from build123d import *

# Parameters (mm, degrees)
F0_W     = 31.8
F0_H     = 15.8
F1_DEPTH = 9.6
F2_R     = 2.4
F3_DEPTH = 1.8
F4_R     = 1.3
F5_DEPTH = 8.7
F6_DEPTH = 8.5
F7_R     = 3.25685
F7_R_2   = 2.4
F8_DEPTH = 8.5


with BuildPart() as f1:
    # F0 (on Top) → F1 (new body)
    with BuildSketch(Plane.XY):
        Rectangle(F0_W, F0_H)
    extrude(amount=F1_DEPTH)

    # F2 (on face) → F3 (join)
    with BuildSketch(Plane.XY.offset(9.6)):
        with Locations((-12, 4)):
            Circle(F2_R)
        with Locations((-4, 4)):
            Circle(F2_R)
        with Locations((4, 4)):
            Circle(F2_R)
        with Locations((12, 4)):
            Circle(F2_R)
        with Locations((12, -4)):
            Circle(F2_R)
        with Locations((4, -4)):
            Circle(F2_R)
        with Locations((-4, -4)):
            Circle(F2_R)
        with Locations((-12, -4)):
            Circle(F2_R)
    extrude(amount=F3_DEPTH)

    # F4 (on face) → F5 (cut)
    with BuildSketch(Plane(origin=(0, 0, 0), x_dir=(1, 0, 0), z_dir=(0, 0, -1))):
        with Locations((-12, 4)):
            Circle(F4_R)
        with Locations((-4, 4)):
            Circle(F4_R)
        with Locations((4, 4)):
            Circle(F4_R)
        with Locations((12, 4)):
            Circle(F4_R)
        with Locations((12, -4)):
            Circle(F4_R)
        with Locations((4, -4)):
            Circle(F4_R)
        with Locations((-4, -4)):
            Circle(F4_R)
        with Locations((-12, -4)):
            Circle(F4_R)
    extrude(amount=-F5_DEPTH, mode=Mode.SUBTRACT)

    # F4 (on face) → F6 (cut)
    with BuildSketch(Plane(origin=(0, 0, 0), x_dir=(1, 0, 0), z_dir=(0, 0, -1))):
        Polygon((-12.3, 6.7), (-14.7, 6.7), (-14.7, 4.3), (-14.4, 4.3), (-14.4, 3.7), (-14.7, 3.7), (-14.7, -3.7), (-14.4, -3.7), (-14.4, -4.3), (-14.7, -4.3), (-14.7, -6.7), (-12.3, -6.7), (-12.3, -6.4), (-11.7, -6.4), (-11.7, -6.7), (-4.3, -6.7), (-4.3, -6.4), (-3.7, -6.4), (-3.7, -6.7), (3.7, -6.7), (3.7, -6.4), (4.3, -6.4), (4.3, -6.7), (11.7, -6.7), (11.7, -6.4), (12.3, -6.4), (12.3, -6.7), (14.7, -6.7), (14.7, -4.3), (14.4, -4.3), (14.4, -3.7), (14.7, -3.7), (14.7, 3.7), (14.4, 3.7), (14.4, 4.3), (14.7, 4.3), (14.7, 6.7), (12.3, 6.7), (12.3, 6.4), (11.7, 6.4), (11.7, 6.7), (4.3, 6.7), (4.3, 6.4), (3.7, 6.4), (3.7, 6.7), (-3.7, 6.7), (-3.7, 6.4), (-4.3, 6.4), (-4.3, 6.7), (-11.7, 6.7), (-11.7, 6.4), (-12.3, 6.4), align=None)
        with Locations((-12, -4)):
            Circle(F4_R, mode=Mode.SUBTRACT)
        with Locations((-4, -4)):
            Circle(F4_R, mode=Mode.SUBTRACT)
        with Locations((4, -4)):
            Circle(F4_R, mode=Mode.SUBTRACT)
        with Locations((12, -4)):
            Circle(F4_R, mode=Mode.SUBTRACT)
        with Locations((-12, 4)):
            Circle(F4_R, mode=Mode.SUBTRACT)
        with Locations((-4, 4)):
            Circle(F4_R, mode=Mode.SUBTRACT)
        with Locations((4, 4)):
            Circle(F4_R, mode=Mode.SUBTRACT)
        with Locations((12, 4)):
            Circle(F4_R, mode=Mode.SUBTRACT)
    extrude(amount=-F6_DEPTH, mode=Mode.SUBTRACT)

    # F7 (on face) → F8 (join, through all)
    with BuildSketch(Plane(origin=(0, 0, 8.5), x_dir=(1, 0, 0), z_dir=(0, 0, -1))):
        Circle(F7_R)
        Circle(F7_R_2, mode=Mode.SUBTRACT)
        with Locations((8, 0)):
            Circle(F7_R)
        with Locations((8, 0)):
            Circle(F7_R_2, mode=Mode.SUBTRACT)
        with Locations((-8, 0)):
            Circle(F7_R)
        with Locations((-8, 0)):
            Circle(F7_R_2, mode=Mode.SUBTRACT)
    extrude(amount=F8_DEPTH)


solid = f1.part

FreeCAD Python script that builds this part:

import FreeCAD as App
import Part
import Sketcher
from FreeCAD import Vector


def add_polygon(sketch, points):
    """Adds a closed chain of lines whose ends are joined by coincident constraints."""
    first, n = sketch.GeometryCount, len(points)
    for a, b in zip(points, points[1:] + points[:1]):
        sketch.addGeometry(Part.LineSegment(App.Vector(*a, 0), App.Vector(*b, 0)), False)
    for i in range(n):
        sketch.addConstraint(Sketcher.Constraint("Coincident", first + i, 2, first + (i + 1) % n, 1))

doc = App.newDocument("Part")
body = doc.addObject("PartDesign::Body", "Body")

sketch1 = body.newObject("Sketcher::SketchObject", "Sketch")
sketch1.AttachmentSupport = (doc.getObject("XY_Plane"), [""])
sketch1.MapMode = "FlatFace"
add_polygon(sketch1, [(-15.9, 7.9), (-15.9, -7.9), (15.9, -7.9), (15.9, 7.9)])
sketch1.addConstraint(Sketcher.Constraint("Vertical", 0))
sketch1.addConstraint(Sketcher.Constraint("Horizontal", 1))
sketch1.addConstraint(Sketcher.Constraint("Vertical", 2))
sketch1.addConstraint(Sketcher.Constraint("Horizontal", 3))
sketch1.addConstraint(Sketcher.Constraint("Symmetric", 0, 2, 2, 2, -1, 1))
sketch1.addConstraint(Sketcher.Constraint("DistanceX", 1, 1, 1, 2, 31.8))
sketch1.addConstraint(Sketcher.Constraint("DistanceY", 0, 2, 0, 1, 15.8))
pad1 = body.newObject("PartDesign::Pad", "Pad")
pad1.Profile = sketch1
pad1.Length = 9.6

sketch2 = body.newObject("Sketcher::SketchObject", "Sketch001")
sketch2.AttachmentSupport = (doc.getObject("XY_Plane"), [""])
sketch2.MapMode = "FlatFace"
sketch2.AttachmentOffset = App.Placement(Vector(0, 0, 9.6), App.Rotation())
sketch2.addGeometry(Part.Circle(Vector(-12, 4, 0), Vector(0, 0, 1), 2.4), False)
sketch2.addGeometry(Part.Circle(Vector(-4, 4, 0), Vector(0, 0, 1), 2.4), False)
sketch2.addGeometry(Part.Circle(Vector(4, 4, 0), Vector(0, 0, 1), 2.4), False)
sketch2.addGeometry(Part.Circle(Vector(12, 4, 0), Vector(0, 0, 1), 2.4), False)
sketch2.addGeometry(Part.Circle(Vector(12, -4, 0), Vector(0, 0, 1), 2.4), False)
sketch2.addGeometry(Part.Circle(Vector(4, -4, 0), Vector(0, 0, 1), 2.4), False)
sketch2.addGeometry(Part.Circle(Vector(-4, -4, 0), Vector(0, 0, 1), 2.4), False)
sketch2.addGeometry(Part.Circle(Vector(-12, -4, 0), Vector(0, 0, 1), 2.4), False)
sketch2.addConstraint(Sketcher.Constraint("Equal", 0, 1))
sketch2.addConstraint(Sketcher.Constraint("Equal", 1, 2))
sketch2.addConstraint(Sketcher.Constraint("Equal", 2, 3))
sketch2.addConstraint(Sketcher.Constraint("Equal", 3, 4))
sketch2.addConstraint(Sketcher.Constraint("Equal", 4, 5))
sketch2.addConstraint(Sketcher.Constraint("Equal", 5, 6))
sketch2.addConstraint(Sketcher.Constraint("Equal", 6, 7))
sketch2.addConstraint(Sketcher.Constraint("Symmetric", 0, 3, 4, 3, -1, 1))
sketch2.addConstraint(Sketcher.Constraint("Symmetric", 1, 3, 5, 3, -1, 1))
sketch2.addConstraint(Sketcher.Constraint("Symmetric", 2, 3, 6, 3, -1, 1))
sketch2.addConstraint(Sketcher.Constraint("Symmetric", 3, 3, 7, 3, -1, 1))
sketch2.addConstraint(Sketcher.Constraint("Symmetric", 1, 3, 2, 3, -2))
sketch2.addConstraint(Sketcher.Constraint("Symmetric", 0, 3, 3, 3, -2))
sketch2.addConstraint(Sketcher.Constraint("Horizontal", 0, 3, 1, 3))
sketch2.addConstraint(Sketcher.Constraint("Diameter", 0, 4.8))
sketch2.addConstraint(Sketcher.Constraint("DistanceX", 0, 3, -1, 1, 12.0))
sketch2.addConstraint(Sketcher.Constraint("DistanceY", -1, 1, 0, 3, 4.0))
sketch2.addConstraint(Sketcher.Constraint("DistanceX", 1, 3, -1, 1, 4.0))
pad2 = body.newObject("PartDesign::Pad", "Pad001")
pad2.Profile = sketch2
pad2.Length = 1.8

sketch3 = body.newObject("Sketcher::SketchObject", "Sketch002")
sketch3.AttachmentSupport = (doc.getObject("XY_Plane"), [""])
sketch3.MapMode = "FlatFace"
sketch3.addGeometry(Part.Circle(Vector(-12, -4, 0), Vector(0, 0, 1), 1.3), False)
sketch3.addGeometry(Part.Circle(Vector(-4, -4, 0), Vector(0, 0, 1), 1.3), False)
sketch3.addGeometry(Part.Circle(Vector(4, -4, 0), Vector(0, 0, 1), 1.3), False)
sketch3.addGeometry(Part.Circle(Vector(12, -4, 0), Vector(0, 0, 1), 1.3), False)
sketch3.addGeometry(Part.Circle(Vector(12, 4, 0), Vector(0, 0, 1), 1.3), False)
sketch3.addGeometry(Part.Circle(Vector(4, 4, 0), Vector(0, 0, 1), 1.3), False)
sketch3.addGeometry(Part.Circle(Vector(-4, 4, 0), Vector(0, 0, 1), 1.3), False)
sketch3.addGeometry(Part.Circle(Vector(-12, 4, 0), Vector(0, 0, 1), 1.3), False)
sketch3.addConstraint(Sketcher.Constraint("Equal", 0, 1))
sketch3.addConstraint(Sketcher.Constraint("Equal", 1, 2))
sketch3.addConstraint(Sketcher.Constraint("Equal", 2, 3))
sketch3.addConstraint(Sketcher.Constraint("Equal", 3, 4))
sketch3.addConstraint(Sketcher.Constraint("Equal", 4, 5))
sketch3.addConstraint(Sketcher.Constraint("Equal", 5, 6))
sketch3.addConstraint(Sketcher.Constraint("Equal", 6, 7))
sketch3.addConstraint(Sketcher.Constraint("Symmetric", 0, 3, 4, 3, -1, 1))
sketch3.addConstraint(Sketcher.Constraint("Symmetric", 1, 3, 5, 3, -1, 1))
sketch3.addConstraint(Sketcher.Constraint("Symmetric", 2, 3, 6, 3, -1, 1))
sketch3.addConstraint(Sketcher.Constraint("Symmetric", 3, 3, 7, 3, -1, 1))
sketch3.addConstraint(Sketcher.Constraint("Symmetric", 1, 3, 2, 3, -2))
sketch3.addConstraint(Sketcher.Constraint("Symmetric", 0, 3, 3, 3, -2))
sketch3.addConstraint(Sketcher.Constraint("Horizontal", 0, 3, 1, 3))
sketch3.addConstraint(Sketcher.Constraint("Diameter", 0, 2.6))
sketch3.addConstraint(Sketcher.Constraint("DistanceX", 0, 3, -1, 1, 12.0))
sketch3.addConstraint(Sketcher.Constraint("DistanceY", 0, 3, -1, 1, 4.0))
sketch3.addConstraint(Sketcher.Constraint("DistanceX", 1, 3, -1, 1, 4.0))
pocket1 = body.newObject("PartDesign::Pocket", "Pocket")
pocket1.Profile = sketch3
pocket1.Length = 8.7
pocket1.Reversed = True

sketch4 = body.newObject("Sketcher::SketchObject", "Sketch003")
sketch4.AttachmentSupport = (doc.getObject("XY_Plane"), [""])
sketch4.MapMode = "FlatFace"
add_polygon(sketch4, [(-12.3, -6.7), (-14.7, -6.7), (-14.7, -4.3), (-14.4, -4.3), (-14.4, -3.7), (-14.7, -3.7), (-14.7, 3.7), (-14.4, 3.7), (-14.4, 4.3), (-14.7, 4.3), (-14.7, 6.7), (-12.3, 6.7), (-12.3, 6.4), (-11.7, 6.4), (-11.7, 6.7), (-4.3, 6.7), (-4.3, 6.4), (-3.7, 6.4), (-3.7, 6.7), (3.7, 6.7), (3.7, 6.4), (4.3, 6.4), (4.3, 6.7), (11.7, 6.7), (11.7, 6.4), (12.3, 6.4), (12.3, 6.7), (14.7, 6.7), (14.7, 4.3), (14.4, 4.3), (14.4, 3.7), (14.7, 3.7), (14.7, -3.7), (14.4, -3.7), (14.4, -4.3), (14.7, -4.3), (14.7, -6.7), (12.3, -6.7), (12.3, -6.4), (11.7, -6.4), (11.7, -6.7), (4.3, -6.7), (4.3, -6.4), (3.7, -6.4), (3.7, -6.7), (-3.7, -6.7), (-3.7, -6.4), (-4.3, -6.4), (-4.3, -6.7), (-11.7, -6.7), (-11.7, -6.4), (-12.3, -6.4)])
sketch4.addGeometry(Part.Circle(Vector(-12, 4, 0), Vector(0, 0, 1), 1.3), False)
sketch4.addGeometry(Part.Circle(Vector(-4, 4, 0), Vector(0, 0, 1), 1.3), False)
sketch4.addGeometry(Part.Circle(Vector(4, 4, 0), Vector(0, 0, 1), 1.3), False)
sketch4.addGeometry(Part.Circle(Vector(12, 4, 0), Vector(0, 0, 1), 1.3), False)
sketch4.addGeometry(Part.Circle(Vector(-12, -4, 0), Vector(0, 0, 1), 1.3), False)
sketch4.addGeometry(Part.Circle(Vector(-4, -4, 0), Vector(0, 0, 1), 1.3), False)
sketch4.addGeometry(Part.Circle(Vector(4, -4, 0), Vector(0, 0, 1), 1.3), False)
sketch4.addGeometry(Part.Circle(Vector(12, -4, 0), Vector(0, 0, 1), 1.3), False)
sketch4.addConstraint(Sketcher.Constraint("Horizontal", 0))
sketch4.addConstraint(Sketcher.Constraint("Vertical", 1))
sketch4.addConstraint(Sketcher.Constraint("Horizontal", 2))
sketch4.addConstraint(Sketcher.Constraint("Vertical", 3))
sketch4.addConstraint(Sketcher.Constraint("Horizontal", 4))
sketch4.addConstraint(Sketcher.Constraint("Vertical", 5))
sketch4.addConstraint(Sketcher.Constraint("Horizontal", 6))
sketch4.addConstraint(Sketcher.Constraint("Vertical", 7))
sketch4.addConstraint(Sketcher.Constraint("Horizontal", 8))
sketch4.addConstraint(Sketcher.Constraint("Vertical", 9))
sketch4.addConstraint(Sketcher.Constraint("Horizontal", 10))
sketch4.addConstraint(Sketcher.Constraint("Vertical", 11))
sketch4.addConstraint(Sketcher.Constraint("Horizontal", 12))
sketch4.addConstraint(Sketcher.Constraint("Vertical", 13))
sketch4.addConstraint(Sketcher.Constraint("Horizontal", 14))
sketch4.addConstraint(Sketcher.Constraint("Vertical", 15))
sketch4.addConstraint(Sketcher.Constraint("Horizontal", 16))
sketch4.addConstraint(Sketcher.Constraint("Vertical", 17))
sketch4.addConstraint(Sketcher.Constraint("Horizontal", 18))
sketch4.addConstraint(Sketcher.Constraint("Vertical", 19))
sketch4.addConstraint(Sketcher.Constraint("Horizontal", 20))
sketch4.addConstraint(Sketcher.Constraint("Vertical", 21))
sketch4.addConstraint(Sketcher.Constraint("Horizontal", 22))
sketch4.addConstraint(Sketcher.Constraint("Vertical", 23))
sketch4.addConstraint(Sketcher.Constraint("Horizontal", 24))
sketch4.addConstraint(Sketcher.Constraint("Vertical", 25))
sketch4.addConstraint(Sketcher.Constraint("Horizontal", 26))
sketch4.addConstraint(Sketcher.Constraint("Vertical", 27))
sketch4.addConstraint(Sketcher.Constraint("Horizontal", 28))
sketch4.addConstraint(Sketcher.Constraint("Vertical", 29))
sketch4.addConstraint(Sketcher.Constraint("Horizontal", 30))
sketch4.addConstraint(Sketcher.Constraint("Vertical", 31))
sketch4.addConstraint(Sketcher.Constraint("Horizontal", 32))
sketch4.addConstraint(Sketcher.Constraint("Vertical", 33))
sketch4.addConstraint(Sketcher.Constraint("Horizontal", 34))
sketch4.addConstraint(Sketcher.Constraint("Vertical", 35))
sketch4.addConstraint(Sketcher.Constraint("Horizontal", 36))
sketch4.addConstraint(Sketcher.Constraint("Vertical", 37))
sketch4.addConstraint(Sketcher.Constraint("Horizontal", 38))
sketch4.addConstraint(Sketcher.Constraint("Vertical", 39))
sketch4.addConstraint(Sketcher.Constraint("Horizontal", 40))
sketch4.addConstraint(Sketcher.Constraint("Vertical", 41))
sketch4.addConstraint(Sketcher.Constraint("Horizontal", 42))
sketch4.addConstraint(Sketcher.Constraint("Vertical", 43))
sketch4.addConstraint(Sketcher.Constraint("Horizontal", 44))
sketch4.addConstraint(Sketcher.Constraint("Vertical", 45))
sketch4.addConstraint(Sketcher.Constraint("Horizontal", 46))
sketch4.addConstraint(Sketcher.Constraint("Vertical", 47))
sketch4.addConstraint(Sketcher.Constraint("Horizontal", 48))
sketch4.addConstraint(Sketcher.Constraint("Vertical", 49))
sketch4.addConstraint(Sketcher.Constraint("Horizontal", 50))
sketch4.addConstraint(Sketcher.Constraint("Vertical", 51))
sketch4.addConstraint(Sketcher.Constraint("Equal", 52, 53))
sketch4.addConstraint(Sketcher.Constraint("Equal", 53, 54))
sketch4.addConstraint(Sketcher.Constraint("Equal", 54, 55))
sketch4.addConstraint(Sketcher.Constraint("Equal", 55, 56))
sketch4.addConstraint(Sketcher.Constraint("Equal", 56, 57))
sketch4.addConstraint(Sketcher.Constraint("Equal", 57, 58))
sketch4.addConstraint(Sketcher.Constraint("Equal", 58, 59))
sketch4.addConstraint(Sketcher.Constraint("Symmetric", 55, 3, 56, 3, -1, 1))
sketch4.addConstraint(Sketcher.Constraint("Symmetric", 54, 3, 57, 3, -1, 1))
sketch4.addConstraint(Sketcher.Constraint("Symmetric", 53, 3, 58, 3, -1, 1))
sketch4.addConstraint(Sketcher.Constraint("Symmetric", 52, 3, 59, 3, -1, 1))
sketch4.addConstraint(Sketcher.Constraint("Symmetric", 0, 2, 26, 2, -1, 1))
sketch4.addConstraint(Sketcher.Constraint("Symmetric", 2, 2, 28, 2, -1, 1))
sketch4.addConstraint(Sketcher.Constraint("Symmetric", 4, 2, 30, 2, -1, 1))
sketch4.addConstraint(Sketcher.Constraint("Symmetric", 6, 2, 32, 2, -1, 1))
sketch4.addConstraint(Sketcher.Constraint("Symmetric", 8, 2, 34, 2, -1, 1))
sketch4.addConstraint(Sketcher.Constraint("Symmetric", 10, 2, 36, 2, -1, 1))
sketch4.addConstraint(Sketcher.Constraint("Symmetric", 12, 2, 38, 2, -1, 1))
sketch4.addConstraint(Sketcher.Constraint("Symmetric", 14, 2, 40, 2, -1, 1))
sketch4.addConstraint(Sketcher.Constraint("Symmetric", 16, 2, 42, 2, -1, 1))
sketch4.addConstraint(Sketcher.Constraint("Symmetric", 18, 2, 44, 2, -1, 1))
sketch4.addConstraint(Sketcher.Constraint("Symmetric", 20, 2, 46, 2, -1, 1))
sketch4.addConstraint(Sketcher.Constraint("Symmetric", 22, 2, 48, 2, -1, 1))
sketch4.addConstraint(Sketcher.Constraint("Symmetric", 24, 2, 50, 2, -1, 1))
sketch4.addConstraint(Sketcher.Constraint("Symmetric", 53, 3, 54, 3, -2))
sketch4.addConstraint(Sketcher.Constraint("Symmetric", 52, 3, 55, 3, -2))
sketch4.addConstraint(Sketcher.Constraint("Symmetric", 16, 2, 19, 2, -2))
sketch4.addConstraint(Sketcher.Constraint("Symmetric", 14, 2, 21, 2, -2))
sketch4.addConstraint(Sketcher.Constraint("Symmetric", 12, 2, 23, 2, -2))
sketch4.addConstraint(Sketcher.Constraint("Symmetric", 10, 2, 25, 2, -2))
sketch4.addConstraint(Sketcher.Constraint("Symmetric", 8, 2, 27, 2, -2))
sketch4.addConstraint(Sketcher.Constraint("Symmetric", 6, 2, 29, 2, -2))
sketch4.addConstraint(Sketcher.Constraint("Horizontal", 52, 3, 53, 3))
sketch4.addConstraint(Sketcher.Constraint("Horizontal", 10, 2, 13, 2))
sketch4.addConstraint(Sketcher.Constraint("Horizontal", 12, 2, 15, 2))
sketch4.addConstraint(Sketcher.Constraint("Horizontal", 14, 2, 17, 2))
sketch4.addConstraint(Sketcher.Constraint("Vertical", 1, 2, 4, 2))
sketch4.addConstraint(Sketcher.Constraint("Equal", 12, 16))
sketch4.addConstraint(Sketcher.Constraint("Equal", 14, 18))
sketch4.addConstraint(Sketcher.Constraint("Equal", 36, 1))
sketch4.addConstraint(Sketcher.Constraint("Equal", 50, 3))
sketch4.addConstraint(Sketcher.Constraint("Equal", 48, 5))
sketch4.addConstraint(Sketcher.Constraint("Equal", 34, 11))
sketch4.addConstraint(Sketcher.Constraint("Diameter", 52, 2.6))
sketch4.addConstraint(Sketcher.Constraint("DistanceX", 0, 2, 0, 1, 2.4))
sketch4.addConstraint(Sketcher.Constraint("DistanceX", 2, 1, 2, 2, 0.3))
sketch4.addConstraint(Sketcher.Constraint("DistanceX", 12, 1, 12, 2, 0.6))
sketch4.addConstraint(Sketcher.Constraint("DistanceX", 14, 1, 14, 2, 7.4))
sketch4.addConstraint(Sketcher.Constraint("DistanceX", 52, 3, -1, 1, 12.0))
sketch4.addConstraint(Sketcher.Constraint("DistanceY", -1, 1, 52, 3, 4.0))
sketch4.addConstraint(Sketcher.Constraint("DistanceX", 53, 3, -1, 1, 4.0))
pocket2 = body.newObject("PartDesign::Pocket", "Pocket001")
pocket2.Profile = sketch4
pocket2.Length = 8.5
pocket2.Reversed = True

sketch5 = body.newObject("Sketcher::SketchObject", "Sketch004")
sketch5.AttachmentSupport = (doc.getObject("XY_Plane"), [""])
sketch5.MapMode = "FlatFace"
sketch5.AttachmentOffset = App.Placement(Vector(0, 0, 8.5), App.Rotation())
sketch5.addGeometry(Part.Circle(Vector(0, 0, 0), Vector(0, 0, 1), 3.25685), False)
sketch5.addGeometry(Part.Circle(Vector(0, 0, 0), Vector(0, 0, 1), 2.4), False)
sketch5.addGeometry(Part.Circle(Vector(8, 0, 0), Vector(0, 0, 1), 3.25685), False)
sketch5.addGeometry(Part.Circle(Vector(8, 0, 0), Vector(0, 0, 1), 2.4), False)
sketch5.addGeometry(Part.Circle(Vector(-8, 0, 0), Vector(0, 0, 1), 3.25685), False)
sketch5.addGeometry(Part.Circle(Vector(-8, 0, 0), Vector(0, 0, 1), 2.4), False)
sketch5.addConstraint(Sketcher.Constraint("Coincident", 0, 3, -1, 1))
sketch5.addConstraint(Sketcher.Constraint("Coincident", 1, 3, -1, 1))
sketch5.addConstraint(Sketcher.Constraint("Coincident", 3, 3, 2, 3))
sketch5.addConstraint(Sketcher.Constraint("Coincident", 5, 3, 4, 3))
sketch5.addConstraint(Sketcher.Constraint("Equal", 0, 2))
sketch5.addConstraint(Sketcher.Constraint("Equal", 1, 3))
sketch5.addConstraint(Sketcher.Constraint("Equal", 2, 4))
sketch5.addConstraint(Sketcher.Constraint("Equal", 3, 5))
sketch5.addConstraint(Sketcher.Constraint("Symmetric", 2, 3, 4, 3, -1, 1))
sketch5.addConstraint(Sketcher.Constraint("PointOnObject", 2, 3, -1))
sketch5.addConstraint(Sketcher.Constraint("Diameter", 1, 4.8))
sketch5.addConstraint(Sketcher.Constraint("DistanceX", -1, 1, 2, 3, 8.0))
sketch5.addConstraint(Sketcher.Constraint("Diameter", 0, 6.5137))
pad3 = body.newObject("PartDesign::Pad", "Pad002")
pad3.Profile = sketch5
pad3.Length = 8.5
pad3.Reversed = True

doc.recompute()
